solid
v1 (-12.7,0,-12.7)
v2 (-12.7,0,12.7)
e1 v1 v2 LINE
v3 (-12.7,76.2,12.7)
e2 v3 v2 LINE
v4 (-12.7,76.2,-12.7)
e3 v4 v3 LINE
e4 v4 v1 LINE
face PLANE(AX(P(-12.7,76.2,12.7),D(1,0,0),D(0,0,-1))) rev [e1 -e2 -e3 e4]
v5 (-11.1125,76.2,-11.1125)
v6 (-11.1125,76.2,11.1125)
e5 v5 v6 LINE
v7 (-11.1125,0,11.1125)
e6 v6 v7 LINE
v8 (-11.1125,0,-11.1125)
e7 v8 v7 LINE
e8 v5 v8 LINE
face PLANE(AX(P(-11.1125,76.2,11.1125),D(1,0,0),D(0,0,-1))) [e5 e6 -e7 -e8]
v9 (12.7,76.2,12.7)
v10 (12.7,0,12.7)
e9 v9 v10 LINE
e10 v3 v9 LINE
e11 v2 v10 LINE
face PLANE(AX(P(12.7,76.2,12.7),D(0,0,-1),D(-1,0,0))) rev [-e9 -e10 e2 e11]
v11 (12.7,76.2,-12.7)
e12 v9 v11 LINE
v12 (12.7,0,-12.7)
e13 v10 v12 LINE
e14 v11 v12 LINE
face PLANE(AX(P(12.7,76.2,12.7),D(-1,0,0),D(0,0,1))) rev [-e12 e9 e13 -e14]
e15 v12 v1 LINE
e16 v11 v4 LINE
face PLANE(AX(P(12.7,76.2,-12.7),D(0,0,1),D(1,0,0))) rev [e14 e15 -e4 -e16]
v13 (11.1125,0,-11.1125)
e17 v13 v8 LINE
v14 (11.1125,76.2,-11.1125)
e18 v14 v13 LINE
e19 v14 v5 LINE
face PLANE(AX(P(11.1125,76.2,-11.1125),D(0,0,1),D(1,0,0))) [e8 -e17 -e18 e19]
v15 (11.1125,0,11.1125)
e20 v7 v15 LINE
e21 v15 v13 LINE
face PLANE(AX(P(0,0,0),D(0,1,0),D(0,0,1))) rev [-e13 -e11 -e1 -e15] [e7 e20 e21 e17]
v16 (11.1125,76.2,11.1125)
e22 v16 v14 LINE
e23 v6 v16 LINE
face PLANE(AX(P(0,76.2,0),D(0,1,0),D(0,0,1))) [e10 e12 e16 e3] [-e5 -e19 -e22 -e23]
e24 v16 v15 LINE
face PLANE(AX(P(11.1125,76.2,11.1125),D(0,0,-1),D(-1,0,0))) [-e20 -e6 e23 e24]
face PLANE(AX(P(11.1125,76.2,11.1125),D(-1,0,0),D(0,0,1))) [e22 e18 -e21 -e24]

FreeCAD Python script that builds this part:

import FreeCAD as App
import Part
import Sketcher
from FreeCAD import Vector
Q = App.Units.Quantity


def add_polygon(sketch, points):
    """Adds a closed chain of lines whose ends are joined by coincident constraints."""
    first, n = sketch.GeometryCount, len(points)
    for a, b in zip(points, points[1:] + points[:1]):
        sketch.addGeometry(Part.LineSegment(App.Vector(*a, 0), App.Vector(*b, 0)), False)
    for i in range(n):
        sketch.addConstraint(Sketcher.Constraint("Coincident", first + i, 2, first + (i + 1) % n, 1))

doc = App.newDocument("Part")
body = doc.addObject("PartDesign::Body", "Body")

# Sketch on XZ plane
sketch1 = body.newObject("Sketcher::SketchObject", "Sketch")
sketch1.AttachmentSupport = (doc.getObject("XZ_Plane"), [""])
sketch1.MapMode = "FlatFace"
add_polygon(sketch1, [(-12.7, -12.7), (-12.7, 12.7), (12.7, 12.7), (12.7, -12.7)])  # lines 0-3
add_polygon(sketch1, [(11.1125, 11.1125), (-11.1125, 11.1125), (-11.1125, -11.1125), (11.1125, -11.1125)])  # lines 4-7
sketch1.addConstraint([
    Sketcher.Constraint("Vertical", 0),
    Sketcher.Constraint("Horizontal", 1),
    Sketcher.Constraint("Vertical", 2),
    Sketcher.Constraint("Horizontal", 3),
    Sketcher.Constraint("Horizontal", 4),
    Sketcher.Constraint("Vertical", 5),
    Sketcher.Constraint("Horizontal", 6),
    Sketcher.Constraint("Vertical", 7),
    Sketcher.Constraint("Symmetric", 0, 2, 2, 2, -1, 1),
    Sketcher.Constraint("Symmetric", 4, 2, 6, 2, -1, 1),
    Sketcher.Constraint("Equal", 3, 0),
    Sketcher.Constraint("Equal", 6, 5),
    Sketcher.Constraint("DistanceX", 1, 1, 1, 2, Q("1 in")),
    Sketcher.Constraint("DistanceX", 4, 2, 4, 1, Q("0.875 in")),
])
pad1 = body.newObject("PartDesign::Pad", "Pad")
pad1.Profile = sketch1
pad1.Length = Q("3 in")
pad1.Reversed = True

doc.recompute()
